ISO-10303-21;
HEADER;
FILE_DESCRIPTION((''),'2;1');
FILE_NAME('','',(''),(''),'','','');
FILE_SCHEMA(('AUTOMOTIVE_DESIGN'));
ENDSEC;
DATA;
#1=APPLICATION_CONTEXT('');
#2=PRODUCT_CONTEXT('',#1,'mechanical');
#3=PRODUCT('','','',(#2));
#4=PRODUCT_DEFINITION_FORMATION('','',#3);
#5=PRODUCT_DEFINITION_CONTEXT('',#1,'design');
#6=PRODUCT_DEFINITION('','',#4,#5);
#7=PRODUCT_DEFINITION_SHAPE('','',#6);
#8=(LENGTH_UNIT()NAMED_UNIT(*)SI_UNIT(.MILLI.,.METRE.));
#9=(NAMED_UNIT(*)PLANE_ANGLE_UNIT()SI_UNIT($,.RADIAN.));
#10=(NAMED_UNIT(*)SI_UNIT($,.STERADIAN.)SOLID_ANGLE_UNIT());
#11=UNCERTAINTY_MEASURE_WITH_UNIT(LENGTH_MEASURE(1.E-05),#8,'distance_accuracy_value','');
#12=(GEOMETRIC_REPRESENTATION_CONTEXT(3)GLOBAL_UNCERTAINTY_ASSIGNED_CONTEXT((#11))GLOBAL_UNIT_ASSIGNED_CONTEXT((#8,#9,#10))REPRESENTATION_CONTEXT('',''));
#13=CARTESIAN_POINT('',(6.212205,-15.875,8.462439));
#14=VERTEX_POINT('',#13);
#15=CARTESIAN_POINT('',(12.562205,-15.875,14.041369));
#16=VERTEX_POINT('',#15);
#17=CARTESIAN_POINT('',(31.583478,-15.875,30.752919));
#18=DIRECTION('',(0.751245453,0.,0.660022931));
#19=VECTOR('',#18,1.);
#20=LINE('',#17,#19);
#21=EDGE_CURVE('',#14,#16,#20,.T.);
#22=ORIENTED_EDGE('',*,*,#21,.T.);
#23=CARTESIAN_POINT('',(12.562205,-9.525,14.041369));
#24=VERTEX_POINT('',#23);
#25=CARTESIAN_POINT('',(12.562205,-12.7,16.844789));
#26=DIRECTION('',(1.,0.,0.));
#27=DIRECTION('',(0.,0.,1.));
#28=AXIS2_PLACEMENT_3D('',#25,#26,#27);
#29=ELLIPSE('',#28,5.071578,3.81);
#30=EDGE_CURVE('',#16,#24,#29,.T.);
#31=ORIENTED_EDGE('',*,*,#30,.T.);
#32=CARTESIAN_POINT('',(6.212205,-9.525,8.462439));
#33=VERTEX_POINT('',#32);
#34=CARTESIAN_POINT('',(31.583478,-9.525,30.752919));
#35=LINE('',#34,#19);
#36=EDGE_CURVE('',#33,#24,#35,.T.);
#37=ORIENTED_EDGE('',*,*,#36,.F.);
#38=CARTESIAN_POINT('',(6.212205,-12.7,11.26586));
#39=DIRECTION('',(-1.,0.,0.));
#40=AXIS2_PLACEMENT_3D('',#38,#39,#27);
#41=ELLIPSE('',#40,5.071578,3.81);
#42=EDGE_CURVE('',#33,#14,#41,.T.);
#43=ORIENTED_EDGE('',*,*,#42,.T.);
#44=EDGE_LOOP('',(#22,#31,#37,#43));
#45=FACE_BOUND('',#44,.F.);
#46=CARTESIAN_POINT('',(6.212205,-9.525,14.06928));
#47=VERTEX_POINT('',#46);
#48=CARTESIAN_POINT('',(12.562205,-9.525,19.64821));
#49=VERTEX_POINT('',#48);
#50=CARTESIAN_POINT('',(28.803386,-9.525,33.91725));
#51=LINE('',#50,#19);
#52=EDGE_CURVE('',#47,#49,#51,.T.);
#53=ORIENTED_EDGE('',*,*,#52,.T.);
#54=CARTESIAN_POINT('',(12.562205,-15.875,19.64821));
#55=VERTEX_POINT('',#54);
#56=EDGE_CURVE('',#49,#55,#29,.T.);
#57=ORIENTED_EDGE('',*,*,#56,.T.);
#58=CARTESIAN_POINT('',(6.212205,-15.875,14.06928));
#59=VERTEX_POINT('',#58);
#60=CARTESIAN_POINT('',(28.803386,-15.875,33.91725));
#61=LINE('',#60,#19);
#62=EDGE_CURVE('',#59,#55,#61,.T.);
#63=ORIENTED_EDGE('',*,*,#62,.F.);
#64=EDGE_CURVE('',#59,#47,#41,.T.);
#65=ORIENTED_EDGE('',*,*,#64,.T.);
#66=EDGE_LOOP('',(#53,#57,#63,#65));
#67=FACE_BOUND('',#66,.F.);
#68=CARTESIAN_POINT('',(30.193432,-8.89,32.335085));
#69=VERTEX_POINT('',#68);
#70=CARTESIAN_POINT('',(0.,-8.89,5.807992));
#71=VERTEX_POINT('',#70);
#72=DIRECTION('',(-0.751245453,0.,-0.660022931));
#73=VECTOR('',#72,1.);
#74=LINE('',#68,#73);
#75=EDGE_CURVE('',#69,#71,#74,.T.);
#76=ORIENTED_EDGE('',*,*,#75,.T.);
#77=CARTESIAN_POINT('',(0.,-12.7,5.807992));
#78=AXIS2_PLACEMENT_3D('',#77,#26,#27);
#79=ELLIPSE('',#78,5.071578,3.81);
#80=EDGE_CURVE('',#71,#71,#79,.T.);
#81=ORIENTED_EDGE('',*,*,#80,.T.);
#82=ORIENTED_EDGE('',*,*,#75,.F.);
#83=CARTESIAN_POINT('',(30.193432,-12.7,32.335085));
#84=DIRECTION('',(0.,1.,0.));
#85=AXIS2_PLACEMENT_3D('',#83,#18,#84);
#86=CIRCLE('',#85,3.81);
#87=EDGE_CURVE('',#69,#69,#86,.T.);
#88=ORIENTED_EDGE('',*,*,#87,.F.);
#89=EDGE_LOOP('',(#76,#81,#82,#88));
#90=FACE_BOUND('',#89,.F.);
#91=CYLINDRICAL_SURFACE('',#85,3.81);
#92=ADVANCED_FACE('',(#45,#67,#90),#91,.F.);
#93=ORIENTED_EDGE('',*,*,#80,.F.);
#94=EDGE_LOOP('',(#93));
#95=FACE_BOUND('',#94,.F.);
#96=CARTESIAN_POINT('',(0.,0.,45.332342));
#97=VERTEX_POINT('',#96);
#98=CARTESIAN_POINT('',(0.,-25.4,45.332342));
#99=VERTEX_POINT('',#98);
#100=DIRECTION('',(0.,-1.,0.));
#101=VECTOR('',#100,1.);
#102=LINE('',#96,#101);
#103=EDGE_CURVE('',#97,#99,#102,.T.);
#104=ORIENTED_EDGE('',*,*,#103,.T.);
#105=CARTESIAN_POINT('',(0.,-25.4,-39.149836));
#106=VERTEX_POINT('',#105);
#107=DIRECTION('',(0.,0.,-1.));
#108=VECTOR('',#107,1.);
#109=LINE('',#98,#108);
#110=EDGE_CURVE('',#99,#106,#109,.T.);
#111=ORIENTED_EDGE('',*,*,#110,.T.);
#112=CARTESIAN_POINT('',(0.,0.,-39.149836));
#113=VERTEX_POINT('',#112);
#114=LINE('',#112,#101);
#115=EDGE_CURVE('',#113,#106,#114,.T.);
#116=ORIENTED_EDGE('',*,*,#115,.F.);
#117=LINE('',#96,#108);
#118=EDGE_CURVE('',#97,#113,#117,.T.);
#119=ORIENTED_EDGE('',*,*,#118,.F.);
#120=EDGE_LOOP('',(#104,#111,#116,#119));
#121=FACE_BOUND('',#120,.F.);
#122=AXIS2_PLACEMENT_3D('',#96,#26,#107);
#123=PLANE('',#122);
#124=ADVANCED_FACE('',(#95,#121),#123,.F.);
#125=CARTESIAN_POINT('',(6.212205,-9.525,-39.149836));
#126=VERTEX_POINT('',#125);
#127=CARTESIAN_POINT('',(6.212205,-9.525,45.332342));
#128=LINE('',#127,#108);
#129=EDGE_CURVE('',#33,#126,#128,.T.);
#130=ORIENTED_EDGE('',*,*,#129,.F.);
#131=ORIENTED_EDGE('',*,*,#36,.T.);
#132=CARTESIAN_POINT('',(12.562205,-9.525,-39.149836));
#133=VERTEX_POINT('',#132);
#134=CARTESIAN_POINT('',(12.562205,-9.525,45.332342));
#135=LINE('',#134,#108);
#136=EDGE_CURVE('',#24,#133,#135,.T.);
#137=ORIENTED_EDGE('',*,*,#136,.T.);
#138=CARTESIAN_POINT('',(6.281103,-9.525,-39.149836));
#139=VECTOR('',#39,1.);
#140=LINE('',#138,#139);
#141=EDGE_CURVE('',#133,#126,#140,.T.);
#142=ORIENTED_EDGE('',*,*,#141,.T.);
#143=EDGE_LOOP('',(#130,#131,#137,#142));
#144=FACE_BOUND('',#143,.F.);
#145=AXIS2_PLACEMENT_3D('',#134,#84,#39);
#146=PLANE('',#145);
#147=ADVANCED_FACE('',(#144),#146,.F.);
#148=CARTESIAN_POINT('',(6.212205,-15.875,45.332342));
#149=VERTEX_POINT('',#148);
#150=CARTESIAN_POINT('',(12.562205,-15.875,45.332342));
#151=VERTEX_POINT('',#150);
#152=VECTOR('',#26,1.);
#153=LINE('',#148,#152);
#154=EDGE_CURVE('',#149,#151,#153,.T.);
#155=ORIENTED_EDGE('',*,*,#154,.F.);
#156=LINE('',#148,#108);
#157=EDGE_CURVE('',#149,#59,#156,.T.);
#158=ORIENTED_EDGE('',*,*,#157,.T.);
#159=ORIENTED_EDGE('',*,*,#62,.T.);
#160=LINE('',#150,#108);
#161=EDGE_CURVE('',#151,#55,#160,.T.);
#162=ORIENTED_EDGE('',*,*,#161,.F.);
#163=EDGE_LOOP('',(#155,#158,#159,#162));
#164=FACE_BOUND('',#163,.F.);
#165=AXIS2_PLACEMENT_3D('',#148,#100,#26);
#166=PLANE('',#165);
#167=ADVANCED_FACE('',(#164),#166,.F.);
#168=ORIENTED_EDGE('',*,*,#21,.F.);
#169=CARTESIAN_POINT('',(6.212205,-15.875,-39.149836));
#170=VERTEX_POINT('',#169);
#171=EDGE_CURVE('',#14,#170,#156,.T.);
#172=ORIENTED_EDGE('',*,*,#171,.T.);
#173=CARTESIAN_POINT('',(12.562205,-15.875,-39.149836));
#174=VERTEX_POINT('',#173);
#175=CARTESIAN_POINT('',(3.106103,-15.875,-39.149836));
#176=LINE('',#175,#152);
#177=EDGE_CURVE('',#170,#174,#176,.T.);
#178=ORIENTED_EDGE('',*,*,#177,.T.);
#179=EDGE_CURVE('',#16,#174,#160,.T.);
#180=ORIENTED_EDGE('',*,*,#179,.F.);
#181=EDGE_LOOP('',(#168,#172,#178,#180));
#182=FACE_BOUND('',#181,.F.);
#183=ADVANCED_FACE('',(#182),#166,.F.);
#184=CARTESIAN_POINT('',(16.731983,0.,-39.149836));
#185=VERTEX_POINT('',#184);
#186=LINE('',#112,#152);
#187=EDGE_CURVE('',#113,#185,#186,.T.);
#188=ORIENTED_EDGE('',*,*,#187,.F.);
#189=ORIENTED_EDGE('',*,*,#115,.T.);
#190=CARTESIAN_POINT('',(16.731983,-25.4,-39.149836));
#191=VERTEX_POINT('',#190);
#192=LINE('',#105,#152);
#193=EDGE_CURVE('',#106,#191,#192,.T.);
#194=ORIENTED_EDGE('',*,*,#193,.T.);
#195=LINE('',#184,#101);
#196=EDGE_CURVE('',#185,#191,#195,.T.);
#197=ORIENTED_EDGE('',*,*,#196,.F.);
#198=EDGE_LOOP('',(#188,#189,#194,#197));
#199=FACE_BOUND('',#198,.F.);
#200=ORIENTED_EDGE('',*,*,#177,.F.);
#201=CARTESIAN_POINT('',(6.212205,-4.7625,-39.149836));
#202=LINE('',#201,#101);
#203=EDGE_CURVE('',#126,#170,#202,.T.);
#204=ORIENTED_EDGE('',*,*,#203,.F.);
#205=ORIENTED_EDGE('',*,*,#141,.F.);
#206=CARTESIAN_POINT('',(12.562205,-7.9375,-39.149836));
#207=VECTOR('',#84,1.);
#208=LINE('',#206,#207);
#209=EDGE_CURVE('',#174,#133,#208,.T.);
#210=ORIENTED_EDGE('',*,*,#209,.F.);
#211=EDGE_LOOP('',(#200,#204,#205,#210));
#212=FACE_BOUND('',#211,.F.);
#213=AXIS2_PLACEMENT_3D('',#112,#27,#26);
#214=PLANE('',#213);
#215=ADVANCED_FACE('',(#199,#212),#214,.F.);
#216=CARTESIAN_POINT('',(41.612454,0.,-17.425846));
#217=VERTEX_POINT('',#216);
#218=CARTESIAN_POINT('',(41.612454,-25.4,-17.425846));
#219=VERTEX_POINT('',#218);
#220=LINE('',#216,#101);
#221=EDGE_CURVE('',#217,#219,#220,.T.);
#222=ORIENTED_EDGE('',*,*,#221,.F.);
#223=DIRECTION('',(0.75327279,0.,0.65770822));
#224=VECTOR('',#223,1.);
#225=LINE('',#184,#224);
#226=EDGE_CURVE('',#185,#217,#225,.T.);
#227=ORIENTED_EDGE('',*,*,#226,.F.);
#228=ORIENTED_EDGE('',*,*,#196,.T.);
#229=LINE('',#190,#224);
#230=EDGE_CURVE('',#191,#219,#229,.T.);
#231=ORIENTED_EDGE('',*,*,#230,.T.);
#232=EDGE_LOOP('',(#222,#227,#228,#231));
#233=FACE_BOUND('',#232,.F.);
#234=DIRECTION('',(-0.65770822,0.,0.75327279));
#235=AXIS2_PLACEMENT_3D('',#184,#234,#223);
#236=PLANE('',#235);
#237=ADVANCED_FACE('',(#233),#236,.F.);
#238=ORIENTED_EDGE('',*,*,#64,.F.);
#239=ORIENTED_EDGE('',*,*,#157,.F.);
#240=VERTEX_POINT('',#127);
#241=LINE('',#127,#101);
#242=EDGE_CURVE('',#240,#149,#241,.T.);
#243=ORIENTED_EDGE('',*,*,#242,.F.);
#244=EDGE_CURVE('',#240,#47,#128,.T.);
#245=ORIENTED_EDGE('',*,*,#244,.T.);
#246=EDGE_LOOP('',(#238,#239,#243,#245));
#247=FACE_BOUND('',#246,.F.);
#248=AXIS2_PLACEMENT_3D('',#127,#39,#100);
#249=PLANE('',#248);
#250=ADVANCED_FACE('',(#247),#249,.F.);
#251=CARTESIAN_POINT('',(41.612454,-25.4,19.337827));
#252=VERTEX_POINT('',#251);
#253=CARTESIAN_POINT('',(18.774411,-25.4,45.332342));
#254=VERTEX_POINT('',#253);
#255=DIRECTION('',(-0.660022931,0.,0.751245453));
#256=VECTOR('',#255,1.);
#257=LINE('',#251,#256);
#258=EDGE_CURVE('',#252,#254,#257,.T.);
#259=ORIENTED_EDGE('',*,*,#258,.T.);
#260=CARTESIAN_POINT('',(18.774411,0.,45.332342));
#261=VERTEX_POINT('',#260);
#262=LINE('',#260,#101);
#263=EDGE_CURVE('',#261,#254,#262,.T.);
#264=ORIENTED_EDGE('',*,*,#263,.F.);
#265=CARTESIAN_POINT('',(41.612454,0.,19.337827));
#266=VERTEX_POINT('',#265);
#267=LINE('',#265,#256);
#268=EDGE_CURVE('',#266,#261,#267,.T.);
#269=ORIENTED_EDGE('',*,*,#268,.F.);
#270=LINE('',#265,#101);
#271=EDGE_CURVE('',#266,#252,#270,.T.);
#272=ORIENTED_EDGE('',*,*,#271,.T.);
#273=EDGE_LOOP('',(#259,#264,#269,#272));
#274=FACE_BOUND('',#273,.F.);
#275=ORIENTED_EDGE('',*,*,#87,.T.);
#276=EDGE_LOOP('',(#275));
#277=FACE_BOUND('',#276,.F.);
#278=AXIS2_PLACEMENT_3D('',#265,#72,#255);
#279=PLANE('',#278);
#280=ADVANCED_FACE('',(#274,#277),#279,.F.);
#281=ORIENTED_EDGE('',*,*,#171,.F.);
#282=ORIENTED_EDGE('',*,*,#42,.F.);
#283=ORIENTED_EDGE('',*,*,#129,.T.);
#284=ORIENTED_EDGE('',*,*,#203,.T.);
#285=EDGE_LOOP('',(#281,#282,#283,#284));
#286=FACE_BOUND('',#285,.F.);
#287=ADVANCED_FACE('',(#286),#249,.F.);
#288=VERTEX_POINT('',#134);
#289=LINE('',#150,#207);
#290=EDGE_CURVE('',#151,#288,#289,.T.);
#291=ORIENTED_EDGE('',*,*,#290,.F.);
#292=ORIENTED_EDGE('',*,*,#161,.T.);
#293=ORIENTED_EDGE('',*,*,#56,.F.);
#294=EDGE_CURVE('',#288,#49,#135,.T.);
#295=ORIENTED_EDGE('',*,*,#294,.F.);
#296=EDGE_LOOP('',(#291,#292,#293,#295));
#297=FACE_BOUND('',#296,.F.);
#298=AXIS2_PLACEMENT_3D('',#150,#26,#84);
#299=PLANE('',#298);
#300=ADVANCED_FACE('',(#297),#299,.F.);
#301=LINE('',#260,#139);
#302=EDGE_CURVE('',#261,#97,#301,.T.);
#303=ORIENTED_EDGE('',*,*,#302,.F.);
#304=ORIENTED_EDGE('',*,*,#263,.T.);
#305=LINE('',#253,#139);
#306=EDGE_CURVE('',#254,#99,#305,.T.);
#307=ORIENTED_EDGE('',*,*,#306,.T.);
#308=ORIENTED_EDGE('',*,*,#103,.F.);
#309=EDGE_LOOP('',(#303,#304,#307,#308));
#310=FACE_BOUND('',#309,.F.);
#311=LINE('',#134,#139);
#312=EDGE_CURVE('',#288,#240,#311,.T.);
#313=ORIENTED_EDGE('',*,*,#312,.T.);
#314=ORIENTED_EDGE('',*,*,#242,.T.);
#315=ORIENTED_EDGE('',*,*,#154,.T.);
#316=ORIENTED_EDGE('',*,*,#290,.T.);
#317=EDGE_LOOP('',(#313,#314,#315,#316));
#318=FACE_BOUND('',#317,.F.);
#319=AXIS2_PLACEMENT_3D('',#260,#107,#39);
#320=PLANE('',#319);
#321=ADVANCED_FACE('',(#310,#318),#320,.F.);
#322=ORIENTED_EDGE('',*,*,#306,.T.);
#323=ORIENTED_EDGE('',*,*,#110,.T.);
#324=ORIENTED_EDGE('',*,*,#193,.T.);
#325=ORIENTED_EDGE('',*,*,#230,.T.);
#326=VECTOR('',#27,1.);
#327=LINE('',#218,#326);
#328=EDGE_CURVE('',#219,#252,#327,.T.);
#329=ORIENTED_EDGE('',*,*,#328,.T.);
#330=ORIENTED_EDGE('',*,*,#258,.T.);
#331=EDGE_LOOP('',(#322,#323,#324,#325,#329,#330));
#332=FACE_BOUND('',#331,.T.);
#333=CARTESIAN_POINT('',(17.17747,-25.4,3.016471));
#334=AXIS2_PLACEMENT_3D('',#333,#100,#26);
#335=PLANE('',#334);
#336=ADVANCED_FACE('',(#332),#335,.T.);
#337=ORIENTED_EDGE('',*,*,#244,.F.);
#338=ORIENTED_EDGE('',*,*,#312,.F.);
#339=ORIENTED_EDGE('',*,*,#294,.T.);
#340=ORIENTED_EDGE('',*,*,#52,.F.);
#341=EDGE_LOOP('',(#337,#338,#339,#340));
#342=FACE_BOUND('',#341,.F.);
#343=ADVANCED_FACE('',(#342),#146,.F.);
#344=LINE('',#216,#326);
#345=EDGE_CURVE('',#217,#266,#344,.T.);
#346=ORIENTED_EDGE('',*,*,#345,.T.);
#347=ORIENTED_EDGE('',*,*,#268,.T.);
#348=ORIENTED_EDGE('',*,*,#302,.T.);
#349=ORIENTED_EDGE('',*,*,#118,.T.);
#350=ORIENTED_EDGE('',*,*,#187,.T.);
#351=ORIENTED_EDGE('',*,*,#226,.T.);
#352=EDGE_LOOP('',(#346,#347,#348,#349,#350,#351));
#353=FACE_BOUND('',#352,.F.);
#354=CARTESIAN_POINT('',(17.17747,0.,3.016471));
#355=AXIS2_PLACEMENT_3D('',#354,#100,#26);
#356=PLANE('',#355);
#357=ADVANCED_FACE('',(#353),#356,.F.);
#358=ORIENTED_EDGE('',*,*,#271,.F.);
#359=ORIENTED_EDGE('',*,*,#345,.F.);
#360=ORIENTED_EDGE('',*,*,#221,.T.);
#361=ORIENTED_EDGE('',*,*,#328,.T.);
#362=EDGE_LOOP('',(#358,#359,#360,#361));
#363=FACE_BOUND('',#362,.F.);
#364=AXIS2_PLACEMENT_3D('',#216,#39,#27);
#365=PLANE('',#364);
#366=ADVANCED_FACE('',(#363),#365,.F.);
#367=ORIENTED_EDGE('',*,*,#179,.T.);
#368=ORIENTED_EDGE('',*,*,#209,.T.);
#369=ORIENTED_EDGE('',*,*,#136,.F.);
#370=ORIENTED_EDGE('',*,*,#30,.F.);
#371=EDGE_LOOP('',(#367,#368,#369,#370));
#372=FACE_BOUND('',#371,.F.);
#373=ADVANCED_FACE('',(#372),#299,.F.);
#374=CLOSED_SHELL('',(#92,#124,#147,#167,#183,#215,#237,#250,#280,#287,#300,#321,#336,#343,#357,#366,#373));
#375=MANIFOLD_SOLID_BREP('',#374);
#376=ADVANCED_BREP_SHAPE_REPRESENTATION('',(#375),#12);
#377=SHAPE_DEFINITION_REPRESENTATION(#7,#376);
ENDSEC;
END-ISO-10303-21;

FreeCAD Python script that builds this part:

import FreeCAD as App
import Part
import Sketcher
from FreeCAD import Vector
Q = App.Units.Quantity

doc = App.newDocument("Part")
params = doc.addObject("Spreadsheet::Sheet", "Params")
for row, (alias, value) in enumerate([
    ("pad1_length", "1 in"),
    ("sketch2_diameter", "0.3 in"),
    ("sketch3_width", "0.25 in"),
], start=1):
    params.set(f"A{row}", alias)
    params.set(f"B{row}", "=" + value)
    params.setAlias(f"B{row}", alias)

body = doc.addObject("PartDesign::Body", "Body")

sketch1 = body.newObject("Sketcher::SketchObject", "Sketch")
sketch1.AttachmentSupport = (doc.getObject("XZ_Plane"), [""])
sketch1.MapMode = "FlatFace"
sketch1.addGeometry([
    Part.LineSegment(Vector(0, 45, 0), Vector(0, -39, 0)),
    Part.LineSegment(Vector(0, -39, 0), Vector(17, -39, 0)),
    Part.LineSegment(Vector(17, -39, 0), Vector(42, -17, 0)),
    Part.LineSegment(Vector(42, -17, 0), Vector(42, 19, 0)),
    Part.LineSegment(Vector(42, 19, 0), Vector(19, 45, 0)),
    Part.LineSegment(Vector(19, 45, 0), Vector(0, 45, 0)),
], False)
sketch1.addConstraint([
    Sketcher.Constraint("Coincident", 0, 2, 1, 1),
    Sketcher.Constraint("Coincident", 1, 2, 2, 1),
    Sketcher.Constraint("Coincident", 2, 2, 3, 1),
    Sketcher.Constraint("Coincident", 3, 2, 4, 1),
    Sketcher.Constraint("Coincident", 4, 2, 5, 1),
    Sketcher.Constraint("Coincident", 5, 2, 0, 1),
    Sketcher.Constraint("Vertical", 0),
    Sketcher.Constraint("Horizontal", 1),
    Sketcher.Constraint("Vertical", 3),
    Sketcher.Constraint("Horizontal", 5),
    Sketcher.Constraint("PointOnObject", 0, 2, -2),
    Sketcher.Constraint("DistanceX", 5, 2, 5, 1, 18.774411),
    Sketcher.Constraint("DistanceY", 0, 2, 0, 1, 84.482178),
    Sketcher.Constraint("Distance", 2, 33.029828),
    Sketcher.Constraint("DistanceX", 1, 1, 1, 2, 16.731983),
    Sketcher.Constraint("DistanceY", 3, 1, 3, 2, 36.763674),
    Sketcher.Constraint("DistanceX", 1, 2, 2, 2, 24.880471),
    Sketcher.Constraint("DistanceY", 0, 2, -1, 1, 39.149836),
])
pad1 = body.newObject("PartDesign::Pad", "Pad")
pad1.Profile = sketch1
pad1.setExpression("Length", "Params.pad1_length")

sketch2 = body.newObject("Sketcher::SketchObject", "Sketch001")
sketch2.Placement = App.Placement(Vector(33.073263, 0, 29.05723), App.Rotation(Vector(0, 1, 0), Vector(-0.660022931, 0, 0.751245453), Vector(0.751245453, 0, 0.660022931), "ZXY"))
sketch2.addGeometry(Part.Circle(Vector(-12.7, 4.4, 0), Vector(0, 0, 1), 3.8), False)
sketch2.addConstraint([
    Sketcher.Constraint("Diameter", 0, Q("0.3 in")),
    Sketcher.Constraint("DistanceX", 0, 3, -1, 1, Q("0.5 in")),
    Sketcher.Constraint("DistanceY", -1, 1, 0, 3, 4.363228),
])
sketch2.setExpression("Constraints[0]", "Params.sketch2_diameter")
pocket1 = body.newObject("PartDesign::Pocket", "Pocket")
pocket1.Profile = sketch2
pocket1.Type = "ThroughAll"

sketch3 = body.newObject("Sketcher::SketchObject", "Sketch002")
sketch3.AttachmentSupport = (doc.getObject("XY_Plane"), [""])
sketch3.MapMode = "FlatFace"
sketch3.AttachmentOffset = App.Placement(Vector(0, 0, 45.332342), App.Rotation())
sketch3.addGeometry([
    Part.LineSegment(Vector(6, -16, 0), Vector(13, -16, 0)),
    Part.LineSegment(Vector(13, -16, 0), Vector(13, -10, 0)),
    Part.LineSegment(Vector(13, -10, 0), Vector(6, -10, 0)),
    Part.LineSegment(Vector(6, -10, 0), Vector(6, -16, 0)),
], False)
sketch3.addConstraint([
    Sketcher.Constraint("Coincident", 0, 2, 1, 1),
    Sketcher.Constraint("Coincident", 1, 2, 2, 1),
    Sketcher.Constraint("Coincident", 2, 2, 3, 1),
    Sketcher.Constraint("Coincident", 3, 2, 0, 1),
    Sketcher.Constraint("Horizontal", 0),
    Sketcher.Constraint("Vertical", 1),
    Sketcher.Constraint("Horizontal", 2),
    Sketcher.Constraint("Vertical", 3),
    Sketcher.Constraint("Equal", 2, 1),
    Sketcher.Constraint("DistanceX", 0, 1, 0, 2, Q("0.25 in")),
    Sketcher.Constraint("DistanceY", 0, 2, -1, 1, Q("0.625 in")),
    Sketcher.Constraint("DistanceX", -1, 1, 0, 2, 12.562205),
])
sketch3.setExpression("Constraints[9]", "Params.sketch3_width")
pocket2 = body.newObject("PartDesign::Pocket", "Pocket001")
pocket2.Profile = sketch3
pocket2.Type = "ThroughAll"

doc.recompute()
